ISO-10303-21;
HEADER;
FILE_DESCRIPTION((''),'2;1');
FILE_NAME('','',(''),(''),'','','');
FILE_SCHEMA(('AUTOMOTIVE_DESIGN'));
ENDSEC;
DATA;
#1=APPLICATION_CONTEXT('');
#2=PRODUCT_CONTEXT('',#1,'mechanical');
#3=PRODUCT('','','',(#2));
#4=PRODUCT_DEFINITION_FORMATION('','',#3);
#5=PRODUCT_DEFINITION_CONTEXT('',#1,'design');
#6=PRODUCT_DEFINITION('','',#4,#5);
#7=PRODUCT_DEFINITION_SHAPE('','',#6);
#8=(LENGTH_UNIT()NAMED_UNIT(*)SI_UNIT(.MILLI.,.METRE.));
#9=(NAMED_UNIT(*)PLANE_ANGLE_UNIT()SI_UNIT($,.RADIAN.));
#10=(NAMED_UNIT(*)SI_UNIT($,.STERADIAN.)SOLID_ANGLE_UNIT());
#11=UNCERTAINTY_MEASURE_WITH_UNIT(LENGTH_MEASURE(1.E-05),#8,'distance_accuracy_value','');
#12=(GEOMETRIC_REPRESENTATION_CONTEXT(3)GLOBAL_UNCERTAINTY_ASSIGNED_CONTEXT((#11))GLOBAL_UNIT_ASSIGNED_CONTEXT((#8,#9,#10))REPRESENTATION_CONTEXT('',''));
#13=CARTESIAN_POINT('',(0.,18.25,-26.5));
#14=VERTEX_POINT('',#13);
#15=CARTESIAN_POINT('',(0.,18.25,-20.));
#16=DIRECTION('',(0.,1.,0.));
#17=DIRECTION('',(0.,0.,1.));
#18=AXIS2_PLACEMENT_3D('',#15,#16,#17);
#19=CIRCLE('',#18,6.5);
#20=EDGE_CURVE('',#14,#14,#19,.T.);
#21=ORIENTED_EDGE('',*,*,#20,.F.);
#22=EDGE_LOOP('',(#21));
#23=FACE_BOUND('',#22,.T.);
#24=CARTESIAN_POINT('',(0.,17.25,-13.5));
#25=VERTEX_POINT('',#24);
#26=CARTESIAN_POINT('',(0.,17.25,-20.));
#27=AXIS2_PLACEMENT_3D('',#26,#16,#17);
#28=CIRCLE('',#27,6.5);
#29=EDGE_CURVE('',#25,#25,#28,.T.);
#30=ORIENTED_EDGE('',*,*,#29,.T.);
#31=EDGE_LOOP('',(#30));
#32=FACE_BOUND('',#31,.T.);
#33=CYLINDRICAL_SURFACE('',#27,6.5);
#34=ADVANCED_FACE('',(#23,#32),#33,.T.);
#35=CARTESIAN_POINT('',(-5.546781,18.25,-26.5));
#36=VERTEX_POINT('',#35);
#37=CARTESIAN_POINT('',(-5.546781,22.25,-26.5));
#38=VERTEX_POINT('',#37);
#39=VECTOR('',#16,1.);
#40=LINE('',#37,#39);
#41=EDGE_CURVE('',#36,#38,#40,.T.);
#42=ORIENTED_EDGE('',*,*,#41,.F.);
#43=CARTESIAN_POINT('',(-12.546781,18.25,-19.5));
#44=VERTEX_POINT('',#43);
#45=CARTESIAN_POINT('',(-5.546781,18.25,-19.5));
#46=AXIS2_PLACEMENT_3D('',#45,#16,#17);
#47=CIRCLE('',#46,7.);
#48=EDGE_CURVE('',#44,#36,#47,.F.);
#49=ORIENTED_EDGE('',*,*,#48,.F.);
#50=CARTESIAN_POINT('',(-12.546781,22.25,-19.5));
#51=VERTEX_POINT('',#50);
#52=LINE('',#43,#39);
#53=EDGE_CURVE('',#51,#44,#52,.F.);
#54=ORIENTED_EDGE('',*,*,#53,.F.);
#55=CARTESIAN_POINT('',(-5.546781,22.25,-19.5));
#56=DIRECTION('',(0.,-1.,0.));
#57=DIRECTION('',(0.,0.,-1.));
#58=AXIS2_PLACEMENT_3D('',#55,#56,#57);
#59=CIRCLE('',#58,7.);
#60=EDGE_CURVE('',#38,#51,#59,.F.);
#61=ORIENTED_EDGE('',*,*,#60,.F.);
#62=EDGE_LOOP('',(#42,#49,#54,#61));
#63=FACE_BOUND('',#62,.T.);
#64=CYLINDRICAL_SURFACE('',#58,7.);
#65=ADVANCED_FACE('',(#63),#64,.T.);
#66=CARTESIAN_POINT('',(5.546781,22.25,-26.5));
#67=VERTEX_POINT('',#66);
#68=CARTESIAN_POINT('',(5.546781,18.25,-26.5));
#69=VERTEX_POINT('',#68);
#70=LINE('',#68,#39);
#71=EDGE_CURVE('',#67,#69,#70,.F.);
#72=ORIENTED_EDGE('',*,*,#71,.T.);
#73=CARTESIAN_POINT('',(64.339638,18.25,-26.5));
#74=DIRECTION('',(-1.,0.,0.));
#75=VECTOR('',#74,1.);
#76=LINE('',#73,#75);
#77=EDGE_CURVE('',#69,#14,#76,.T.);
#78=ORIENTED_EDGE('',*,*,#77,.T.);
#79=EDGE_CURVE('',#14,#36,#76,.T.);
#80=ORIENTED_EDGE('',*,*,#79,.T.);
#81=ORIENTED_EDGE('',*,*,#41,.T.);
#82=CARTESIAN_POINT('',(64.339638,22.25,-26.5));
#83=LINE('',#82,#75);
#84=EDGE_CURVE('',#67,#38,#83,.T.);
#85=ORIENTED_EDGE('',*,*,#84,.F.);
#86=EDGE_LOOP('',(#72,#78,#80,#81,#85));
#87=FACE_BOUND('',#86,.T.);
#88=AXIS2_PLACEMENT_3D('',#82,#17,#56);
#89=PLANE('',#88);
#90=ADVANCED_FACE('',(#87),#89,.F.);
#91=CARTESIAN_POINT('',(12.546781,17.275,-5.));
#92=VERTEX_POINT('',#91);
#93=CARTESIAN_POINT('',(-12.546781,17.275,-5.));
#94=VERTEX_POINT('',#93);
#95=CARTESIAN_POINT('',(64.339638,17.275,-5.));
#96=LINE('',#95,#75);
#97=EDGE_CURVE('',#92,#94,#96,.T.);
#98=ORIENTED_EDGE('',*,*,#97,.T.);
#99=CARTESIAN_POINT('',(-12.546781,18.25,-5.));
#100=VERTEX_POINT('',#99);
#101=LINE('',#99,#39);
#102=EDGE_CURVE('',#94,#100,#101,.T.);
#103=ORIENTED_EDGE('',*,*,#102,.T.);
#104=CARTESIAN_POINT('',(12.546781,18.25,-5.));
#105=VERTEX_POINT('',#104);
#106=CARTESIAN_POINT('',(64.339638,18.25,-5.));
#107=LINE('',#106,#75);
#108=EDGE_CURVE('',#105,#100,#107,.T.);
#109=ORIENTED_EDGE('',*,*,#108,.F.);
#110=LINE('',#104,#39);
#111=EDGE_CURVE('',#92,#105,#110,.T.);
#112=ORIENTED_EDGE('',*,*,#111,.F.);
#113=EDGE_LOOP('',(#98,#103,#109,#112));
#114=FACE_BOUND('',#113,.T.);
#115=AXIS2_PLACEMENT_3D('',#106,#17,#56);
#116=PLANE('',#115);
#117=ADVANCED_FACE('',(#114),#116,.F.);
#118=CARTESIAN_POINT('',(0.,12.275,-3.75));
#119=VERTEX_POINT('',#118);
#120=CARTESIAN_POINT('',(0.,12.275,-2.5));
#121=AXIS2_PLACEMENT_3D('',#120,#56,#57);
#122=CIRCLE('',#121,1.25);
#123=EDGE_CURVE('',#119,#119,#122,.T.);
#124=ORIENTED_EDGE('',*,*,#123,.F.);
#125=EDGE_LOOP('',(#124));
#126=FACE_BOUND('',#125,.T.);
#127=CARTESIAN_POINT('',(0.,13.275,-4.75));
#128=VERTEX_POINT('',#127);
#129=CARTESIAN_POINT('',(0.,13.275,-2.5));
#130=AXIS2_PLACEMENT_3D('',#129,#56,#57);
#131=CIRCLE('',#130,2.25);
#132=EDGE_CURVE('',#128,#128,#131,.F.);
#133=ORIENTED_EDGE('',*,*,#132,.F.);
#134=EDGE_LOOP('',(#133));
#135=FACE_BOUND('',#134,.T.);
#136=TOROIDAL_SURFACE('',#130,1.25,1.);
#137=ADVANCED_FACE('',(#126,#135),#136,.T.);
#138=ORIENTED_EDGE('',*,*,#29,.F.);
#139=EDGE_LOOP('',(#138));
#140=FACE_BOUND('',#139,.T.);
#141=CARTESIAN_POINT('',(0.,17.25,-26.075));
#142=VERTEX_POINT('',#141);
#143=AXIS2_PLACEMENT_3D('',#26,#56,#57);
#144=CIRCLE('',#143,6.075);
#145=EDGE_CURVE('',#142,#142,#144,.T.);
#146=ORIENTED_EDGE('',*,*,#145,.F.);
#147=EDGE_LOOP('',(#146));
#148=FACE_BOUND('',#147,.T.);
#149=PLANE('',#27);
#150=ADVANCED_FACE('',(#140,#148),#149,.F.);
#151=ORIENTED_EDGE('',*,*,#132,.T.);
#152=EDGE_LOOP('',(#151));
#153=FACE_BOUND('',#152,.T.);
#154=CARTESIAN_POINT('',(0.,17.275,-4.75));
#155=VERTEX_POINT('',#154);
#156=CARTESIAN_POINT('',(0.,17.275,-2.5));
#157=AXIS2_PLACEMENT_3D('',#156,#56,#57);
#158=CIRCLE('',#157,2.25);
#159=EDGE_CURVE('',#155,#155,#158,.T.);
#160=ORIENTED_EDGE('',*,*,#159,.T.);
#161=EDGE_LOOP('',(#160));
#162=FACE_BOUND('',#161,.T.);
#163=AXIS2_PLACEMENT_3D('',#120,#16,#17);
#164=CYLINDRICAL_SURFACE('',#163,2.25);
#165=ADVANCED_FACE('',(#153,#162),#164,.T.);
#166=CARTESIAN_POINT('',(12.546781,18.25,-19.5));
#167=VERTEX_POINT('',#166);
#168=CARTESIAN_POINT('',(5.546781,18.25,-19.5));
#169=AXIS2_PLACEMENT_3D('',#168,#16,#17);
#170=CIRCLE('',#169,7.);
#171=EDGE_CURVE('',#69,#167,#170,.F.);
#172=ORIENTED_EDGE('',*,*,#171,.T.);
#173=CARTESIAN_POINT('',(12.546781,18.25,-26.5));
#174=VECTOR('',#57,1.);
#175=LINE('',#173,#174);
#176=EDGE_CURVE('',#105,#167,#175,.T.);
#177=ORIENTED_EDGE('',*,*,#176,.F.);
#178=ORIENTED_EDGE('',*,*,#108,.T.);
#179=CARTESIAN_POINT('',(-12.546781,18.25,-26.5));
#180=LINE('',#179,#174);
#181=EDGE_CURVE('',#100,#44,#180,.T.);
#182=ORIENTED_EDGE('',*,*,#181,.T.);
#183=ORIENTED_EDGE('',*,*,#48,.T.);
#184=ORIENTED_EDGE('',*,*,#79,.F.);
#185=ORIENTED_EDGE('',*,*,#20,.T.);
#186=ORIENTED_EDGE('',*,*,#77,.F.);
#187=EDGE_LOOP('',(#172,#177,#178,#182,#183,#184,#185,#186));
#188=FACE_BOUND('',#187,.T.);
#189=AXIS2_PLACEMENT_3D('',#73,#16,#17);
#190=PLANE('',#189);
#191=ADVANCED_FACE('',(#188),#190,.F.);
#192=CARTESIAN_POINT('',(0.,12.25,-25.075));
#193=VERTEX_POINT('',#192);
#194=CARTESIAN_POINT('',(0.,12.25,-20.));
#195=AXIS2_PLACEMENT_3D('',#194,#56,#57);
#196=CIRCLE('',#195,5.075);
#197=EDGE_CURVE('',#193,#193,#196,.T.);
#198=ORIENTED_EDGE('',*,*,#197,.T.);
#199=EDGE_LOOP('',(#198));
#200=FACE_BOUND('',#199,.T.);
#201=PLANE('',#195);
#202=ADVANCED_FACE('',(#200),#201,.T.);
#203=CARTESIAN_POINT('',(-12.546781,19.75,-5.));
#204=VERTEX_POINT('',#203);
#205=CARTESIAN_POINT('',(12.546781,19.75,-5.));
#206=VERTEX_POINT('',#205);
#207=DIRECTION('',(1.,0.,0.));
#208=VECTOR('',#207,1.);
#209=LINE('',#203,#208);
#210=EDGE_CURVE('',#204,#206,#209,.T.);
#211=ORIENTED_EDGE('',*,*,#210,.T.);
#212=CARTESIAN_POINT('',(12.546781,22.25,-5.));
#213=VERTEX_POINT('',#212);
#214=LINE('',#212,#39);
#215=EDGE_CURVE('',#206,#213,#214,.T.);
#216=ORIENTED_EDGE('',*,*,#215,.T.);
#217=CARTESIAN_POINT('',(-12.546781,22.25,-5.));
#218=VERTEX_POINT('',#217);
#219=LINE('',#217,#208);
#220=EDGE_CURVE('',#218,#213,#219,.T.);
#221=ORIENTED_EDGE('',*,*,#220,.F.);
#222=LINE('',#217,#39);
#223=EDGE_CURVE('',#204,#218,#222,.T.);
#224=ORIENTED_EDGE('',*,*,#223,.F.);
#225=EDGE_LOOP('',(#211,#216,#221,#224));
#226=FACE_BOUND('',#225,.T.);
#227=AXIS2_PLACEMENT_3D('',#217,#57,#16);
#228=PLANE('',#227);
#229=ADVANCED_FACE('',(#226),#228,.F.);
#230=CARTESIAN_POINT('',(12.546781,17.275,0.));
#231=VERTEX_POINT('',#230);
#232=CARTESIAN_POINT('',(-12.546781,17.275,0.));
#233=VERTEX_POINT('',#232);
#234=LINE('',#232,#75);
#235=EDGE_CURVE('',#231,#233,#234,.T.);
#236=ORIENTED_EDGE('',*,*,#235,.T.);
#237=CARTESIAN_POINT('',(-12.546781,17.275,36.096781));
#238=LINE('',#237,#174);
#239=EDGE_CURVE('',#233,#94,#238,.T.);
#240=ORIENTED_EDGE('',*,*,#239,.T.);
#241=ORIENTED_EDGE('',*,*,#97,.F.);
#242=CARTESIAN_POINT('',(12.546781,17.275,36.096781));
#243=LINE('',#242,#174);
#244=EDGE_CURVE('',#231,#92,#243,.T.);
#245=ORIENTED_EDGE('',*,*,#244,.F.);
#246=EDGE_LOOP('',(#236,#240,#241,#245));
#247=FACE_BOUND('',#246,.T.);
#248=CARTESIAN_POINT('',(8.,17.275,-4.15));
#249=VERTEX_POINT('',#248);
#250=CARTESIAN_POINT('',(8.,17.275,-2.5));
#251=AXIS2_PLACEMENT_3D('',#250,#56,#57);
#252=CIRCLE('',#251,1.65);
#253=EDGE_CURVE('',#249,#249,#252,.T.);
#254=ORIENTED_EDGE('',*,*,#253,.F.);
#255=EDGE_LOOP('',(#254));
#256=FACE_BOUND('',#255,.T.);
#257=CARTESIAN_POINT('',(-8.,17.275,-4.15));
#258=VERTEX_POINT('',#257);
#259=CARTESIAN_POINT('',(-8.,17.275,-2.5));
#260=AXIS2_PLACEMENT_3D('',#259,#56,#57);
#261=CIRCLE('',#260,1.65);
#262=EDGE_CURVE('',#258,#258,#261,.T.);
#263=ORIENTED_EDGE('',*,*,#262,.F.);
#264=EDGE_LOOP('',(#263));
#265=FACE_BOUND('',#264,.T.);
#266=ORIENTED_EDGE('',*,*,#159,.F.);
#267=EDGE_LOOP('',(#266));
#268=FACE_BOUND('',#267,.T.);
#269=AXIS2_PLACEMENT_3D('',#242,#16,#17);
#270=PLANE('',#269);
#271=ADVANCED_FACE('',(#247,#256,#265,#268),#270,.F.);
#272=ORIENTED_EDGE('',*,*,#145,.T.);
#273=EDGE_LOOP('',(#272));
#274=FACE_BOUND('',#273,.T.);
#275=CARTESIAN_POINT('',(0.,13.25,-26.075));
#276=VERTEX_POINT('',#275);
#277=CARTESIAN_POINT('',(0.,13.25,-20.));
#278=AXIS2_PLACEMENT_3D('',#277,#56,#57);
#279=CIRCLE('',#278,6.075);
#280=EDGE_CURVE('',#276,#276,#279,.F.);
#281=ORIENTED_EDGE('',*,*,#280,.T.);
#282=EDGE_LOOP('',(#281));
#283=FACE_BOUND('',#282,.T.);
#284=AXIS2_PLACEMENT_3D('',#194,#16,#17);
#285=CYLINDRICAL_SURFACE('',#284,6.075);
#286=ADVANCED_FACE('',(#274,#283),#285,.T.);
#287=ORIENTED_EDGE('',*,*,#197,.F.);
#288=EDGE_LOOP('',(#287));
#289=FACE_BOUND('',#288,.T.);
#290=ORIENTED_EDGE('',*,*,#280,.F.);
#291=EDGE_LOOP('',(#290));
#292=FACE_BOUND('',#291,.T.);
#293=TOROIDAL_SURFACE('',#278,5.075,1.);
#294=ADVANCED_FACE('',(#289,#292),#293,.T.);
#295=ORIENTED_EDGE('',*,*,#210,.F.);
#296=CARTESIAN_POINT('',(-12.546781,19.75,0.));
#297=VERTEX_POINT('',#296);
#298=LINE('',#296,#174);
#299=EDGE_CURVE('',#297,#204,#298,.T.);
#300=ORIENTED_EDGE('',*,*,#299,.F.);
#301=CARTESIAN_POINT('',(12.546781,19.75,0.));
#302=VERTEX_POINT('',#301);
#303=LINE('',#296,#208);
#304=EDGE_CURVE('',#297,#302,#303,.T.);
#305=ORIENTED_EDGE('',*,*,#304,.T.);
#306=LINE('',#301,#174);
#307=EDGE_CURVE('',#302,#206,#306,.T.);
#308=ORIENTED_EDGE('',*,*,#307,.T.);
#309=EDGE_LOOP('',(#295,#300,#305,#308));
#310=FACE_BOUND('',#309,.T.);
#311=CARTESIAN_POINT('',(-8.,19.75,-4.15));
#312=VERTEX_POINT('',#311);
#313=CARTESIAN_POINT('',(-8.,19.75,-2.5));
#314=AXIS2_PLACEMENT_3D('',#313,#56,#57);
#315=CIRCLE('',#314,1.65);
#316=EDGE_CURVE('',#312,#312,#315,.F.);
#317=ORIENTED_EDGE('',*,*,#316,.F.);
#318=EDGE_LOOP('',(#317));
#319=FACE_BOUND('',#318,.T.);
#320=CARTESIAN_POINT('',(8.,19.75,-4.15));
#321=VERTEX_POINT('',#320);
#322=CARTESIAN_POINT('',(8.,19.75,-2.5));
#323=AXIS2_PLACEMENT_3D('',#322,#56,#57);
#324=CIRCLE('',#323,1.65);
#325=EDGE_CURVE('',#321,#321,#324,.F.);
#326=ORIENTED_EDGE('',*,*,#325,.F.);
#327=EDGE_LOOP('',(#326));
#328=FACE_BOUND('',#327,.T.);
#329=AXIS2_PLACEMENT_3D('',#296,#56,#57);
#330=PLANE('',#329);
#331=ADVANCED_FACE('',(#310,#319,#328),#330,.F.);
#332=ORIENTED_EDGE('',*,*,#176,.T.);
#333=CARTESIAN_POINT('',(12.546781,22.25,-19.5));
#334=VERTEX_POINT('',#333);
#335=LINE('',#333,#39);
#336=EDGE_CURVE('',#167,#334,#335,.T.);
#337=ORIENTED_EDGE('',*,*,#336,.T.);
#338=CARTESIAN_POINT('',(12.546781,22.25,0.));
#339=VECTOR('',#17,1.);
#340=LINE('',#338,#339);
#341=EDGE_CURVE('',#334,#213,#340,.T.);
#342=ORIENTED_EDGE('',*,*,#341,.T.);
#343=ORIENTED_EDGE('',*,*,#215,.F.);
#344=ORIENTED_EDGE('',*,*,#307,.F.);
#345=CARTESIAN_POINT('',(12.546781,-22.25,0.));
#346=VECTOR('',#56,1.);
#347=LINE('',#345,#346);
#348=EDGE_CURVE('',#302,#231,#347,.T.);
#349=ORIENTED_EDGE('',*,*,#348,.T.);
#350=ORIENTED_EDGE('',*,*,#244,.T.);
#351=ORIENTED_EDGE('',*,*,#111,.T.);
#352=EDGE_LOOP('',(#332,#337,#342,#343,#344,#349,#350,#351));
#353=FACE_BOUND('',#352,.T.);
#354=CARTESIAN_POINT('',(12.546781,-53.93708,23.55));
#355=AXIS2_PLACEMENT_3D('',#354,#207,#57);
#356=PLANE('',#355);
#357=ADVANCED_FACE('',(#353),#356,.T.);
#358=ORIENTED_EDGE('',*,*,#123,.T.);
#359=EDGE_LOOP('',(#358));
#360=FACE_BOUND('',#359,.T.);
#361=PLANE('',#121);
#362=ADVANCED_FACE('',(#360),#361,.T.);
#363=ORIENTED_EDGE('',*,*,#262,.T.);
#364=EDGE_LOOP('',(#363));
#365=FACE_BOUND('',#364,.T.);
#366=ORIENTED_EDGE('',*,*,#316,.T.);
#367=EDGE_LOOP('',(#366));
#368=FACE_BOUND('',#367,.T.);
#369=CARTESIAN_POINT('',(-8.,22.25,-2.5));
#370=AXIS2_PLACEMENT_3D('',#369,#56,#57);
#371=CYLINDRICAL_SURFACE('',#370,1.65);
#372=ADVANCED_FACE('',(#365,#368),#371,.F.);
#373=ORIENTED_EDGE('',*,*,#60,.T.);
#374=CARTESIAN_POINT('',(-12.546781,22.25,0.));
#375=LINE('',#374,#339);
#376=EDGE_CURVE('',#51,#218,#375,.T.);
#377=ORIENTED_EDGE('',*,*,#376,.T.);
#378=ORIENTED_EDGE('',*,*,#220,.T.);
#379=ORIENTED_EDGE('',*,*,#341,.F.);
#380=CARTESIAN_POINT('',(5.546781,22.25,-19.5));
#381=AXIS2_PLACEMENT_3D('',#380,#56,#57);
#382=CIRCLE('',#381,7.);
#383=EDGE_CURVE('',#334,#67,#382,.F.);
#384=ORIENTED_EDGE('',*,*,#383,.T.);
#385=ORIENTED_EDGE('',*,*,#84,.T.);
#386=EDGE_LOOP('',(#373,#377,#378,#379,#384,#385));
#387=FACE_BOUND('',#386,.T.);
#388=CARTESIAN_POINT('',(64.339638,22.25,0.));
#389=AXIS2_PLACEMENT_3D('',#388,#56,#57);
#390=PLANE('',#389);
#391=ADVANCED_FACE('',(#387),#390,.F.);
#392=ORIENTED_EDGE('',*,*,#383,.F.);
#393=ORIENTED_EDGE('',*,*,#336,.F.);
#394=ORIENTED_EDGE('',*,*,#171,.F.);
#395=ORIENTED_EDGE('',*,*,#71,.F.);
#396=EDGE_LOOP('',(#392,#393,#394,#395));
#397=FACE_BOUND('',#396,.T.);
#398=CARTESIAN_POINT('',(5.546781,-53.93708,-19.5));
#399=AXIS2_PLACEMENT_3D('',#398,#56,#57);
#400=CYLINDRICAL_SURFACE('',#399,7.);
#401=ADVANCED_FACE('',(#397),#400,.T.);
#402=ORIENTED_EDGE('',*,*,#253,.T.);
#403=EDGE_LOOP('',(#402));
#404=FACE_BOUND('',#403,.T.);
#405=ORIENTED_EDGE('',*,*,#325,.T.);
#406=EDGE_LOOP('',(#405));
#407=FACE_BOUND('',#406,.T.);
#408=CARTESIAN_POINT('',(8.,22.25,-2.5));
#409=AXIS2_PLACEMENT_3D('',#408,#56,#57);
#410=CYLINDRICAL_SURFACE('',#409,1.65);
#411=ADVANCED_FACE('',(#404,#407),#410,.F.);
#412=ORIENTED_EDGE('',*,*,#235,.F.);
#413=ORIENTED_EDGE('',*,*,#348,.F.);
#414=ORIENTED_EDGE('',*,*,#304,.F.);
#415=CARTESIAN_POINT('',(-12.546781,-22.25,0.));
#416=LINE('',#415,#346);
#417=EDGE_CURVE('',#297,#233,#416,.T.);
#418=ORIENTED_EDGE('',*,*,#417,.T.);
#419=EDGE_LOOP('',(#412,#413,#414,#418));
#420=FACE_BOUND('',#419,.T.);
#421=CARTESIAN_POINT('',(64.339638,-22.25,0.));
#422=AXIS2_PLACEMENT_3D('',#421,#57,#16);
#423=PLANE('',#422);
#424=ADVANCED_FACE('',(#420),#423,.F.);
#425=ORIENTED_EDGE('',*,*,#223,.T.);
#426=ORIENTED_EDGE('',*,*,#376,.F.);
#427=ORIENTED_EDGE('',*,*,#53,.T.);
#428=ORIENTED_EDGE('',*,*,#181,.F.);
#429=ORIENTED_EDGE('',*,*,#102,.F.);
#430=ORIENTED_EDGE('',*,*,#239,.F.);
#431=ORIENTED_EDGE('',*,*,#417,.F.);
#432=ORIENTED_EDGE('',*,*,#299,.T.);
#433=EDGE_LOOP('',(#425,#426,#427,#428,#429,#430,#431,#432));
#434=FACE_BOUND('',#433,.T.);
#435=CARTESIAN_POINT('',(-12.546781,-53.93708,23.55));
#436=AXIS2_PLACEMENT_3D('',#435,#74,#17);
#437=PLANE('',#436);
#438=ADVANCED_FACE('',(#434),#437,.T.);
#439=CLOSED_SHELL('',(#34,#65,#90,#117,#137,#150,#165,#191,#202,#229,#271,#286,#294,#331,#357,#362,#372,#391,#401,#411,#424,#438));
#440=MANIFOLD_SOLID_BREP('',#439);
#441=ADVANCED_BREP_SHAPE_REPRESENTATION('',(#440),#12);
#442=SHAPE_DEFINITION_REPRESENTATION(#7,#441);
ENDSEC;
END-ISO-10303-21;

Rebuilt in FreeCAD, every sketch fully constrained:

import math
import FreeCAD as App
import Part
import Sketcher

V = App.Vector


def edges_at(feature, points):
    """Names of the edges that pass closest to the given points."""
    edges = feature.Shape.Edges
    near = lambda p: min(range(len(edges)), key=lambda i: edges[i].distToShape(Part.Vertex(*p))[0])
    return sorted({f"Edge{near(p) + 1}" for p in points})


def add_polygon(sketch, points):
    """Adds a closed chain of lines whose ends are joined by coincident constraints."""
    first, n = sketch.GeometryCount, len(points)
    for a, b in zip(points, points[1:] + points[:1]):
        sketch.addGeometry(Part.LineSegment(App.Vector(*a, 0), App.Vector(*b, 0)), False)
    for i in range(n):
        sketch.addConstraint(Sketcher.Constraint("Coincident", first + i, 2, first + (i + 1) % n, 1))

doc = App.newDocument("Part")
body = doc.addObject("PartDesign::Body", "Body")

# Sketch on XY plane
sketch1 = body.newObject("Sketcher::SketchObject", "Sketch")
sketch1.AttachmentSupport = (doc.getObject("XY_Plane"), [""])
sketch1.MapMode = "FlatFace"
add_polygon(sketch1, [(-6, 7), (-6, -10), (6, -10), (6, 7)])  # lines 0-3
sketch1.addConstraint([
    Sketcher.Constraint("Vertical", 0),
    Sketcher.Constraint("Horizontal", 1),
    Sketcher.Constraint("Vertical", 2),
    Sketcher.Constraint("Horizontal", 3),
    Sketcher.Constraint("DistanceX", 1, 1, 1, 2, 12.46),
    Sketcher.Constraint("DistanceY", 0, 2, 0, 1, 17.25),
    Sketcher.Constraint("DistanceX", 0, 2, -1, 1, 6.23),
    Sketcher.Constraint("DistanceY", 0, 2, -1, 1, 9.975),
])
pad1 = body.newObject("PartDesign::Pad", "Pad")
pad1.Profile = sketch1
pad1.Length = 6
body2 = doc.addObject("PartDesign::Body", "Body001")

# Sketch on XZ plane
sketch2 = body2.newObject("Sketcher::SketchObject", "Sketch001")
sketch2.AttachmentSupport = (doc.getObject("XZ_Plane001"), [""])
sketch2.MapMode = "FlatFace"
sketch2.AttachmentOffset = App.Placement(V(0, 0, 9.975), App.Rotation())
sketch2.addGeometry([
    Part.Circle(V(0, 24, 0), V(0, 0, 1), 13),
    Part.Circle(V(0, 24, 0), V(0, 0, 1), 11),
], False)
sketch2.addConstraint([
    Sketcher.Constraint("Coincident", 1, 3, 0, 3),
    Sketcher.Constraint("PointOnObject", 0, 3, -2),
    Sketcher.Constraint("Diameter", 1, 22.3),
    Sketcher.Constraint("DistanceY", -1, 1, 0, 3, 23.55),
    Sketcher.Constraint("Diameter", 0, 25.093562),
])
pad2 = body2.newObject("PartDesign::Pad", "Pad001")
pad2.Profile = sketch2
pad2.Type = "TwoLengths"
pad2.Length = 8.3
pad2.Length2 = 17.25
body.AllowCompound = True
doc.recompute()

boolean = body.newObject("PartDesign::Boolean", "Boolean")
boolean.Type = "Fuse"
boolean.addObjects([body2])

# Sketch on XZ plane
sketch3 = body.newObject("Sketcher::SketchObject", "Sketch002")
sketch3.AttachmentSupport = (doc.getObject("XZ_Plane"), [""])
sketch3.MapMode = "FlatFace"
sketch3.AttachmentOffset = App.Placement(V(0, 0, -7.275), App.Rotation())
sketch3.addGeometry([
    Part.LineSegment(V(13, 24, 0), V(13, 0, 0)),  # 0
    Part.LineSegment(V(13, 0, 0), V(6, 0, 0)),  # 1
    Part.LineSegment(V(6, 0, 0), V(6, 30, 0)),  # 2
    Part.LineSegment(V(6, 30, 0), V(-6, 30, 0)),  # 3
    Part.LineSegment(V(-6, 30, 0), V(-6, 0, 0)),  # 4
    Part.LineSegment(V(-6, 0, 0), V(-13, 0, 0)),  # 5
    Part.LineSegment(V(-13, 0, 0), V(-13, 24, 0)),  # 6
    Part.ArcOfCircle(Part.Circle(V(0, 24, 0), V(0, 0, 1), 13), math.radians(0), math.radians(180)),  # 7
], False)
sketch3.addConstraint([
    Sketcher.Constraint("Coincident", 0, 2, 1, 1),
    Sketcher.Constraint("Coincident", 1, 2, 2, 1),
    Sketcher.Constraint("Coincident", 2, 2, 3, 1),
    Sketcher.Constraint("Coincident", 3, 2, 4, 1),
    Sketcher.Constraint("Coincident", 4, 2, 5, 1),
    Sketcher.Constraint("Coincident", 5, 2, 6, 1),
    Sketcher.Constraint("Tangent", 6, 2, 7, 2),
    Sketcher.Constraint("Tangent", 7, 1, 0, 1),
    Sketcher.Constraint("Vertical", 0),
    Sketcher.Constraint("Horizontal", 1),
    Sketcher.Constraint("Vertical", 2),
    Sketcher.Constraint("Horizontal", 3),
    Sketcher.Constraint("Vertical", 4),
    Sketcher.Constraint("Horizontal", 5),
    Sketcher.Constraint("Vertical", 6),
    Sketcher.Constraint("Symmetric", 1, 2, 4, 2, -1, 1),
    Sketcher.Constraint("Symmetric", 0, 2, 5, 2, -2),
    Sketcher.Constraint("DistanceY", 2, 1, 2, 2, 29.7),
    Sketcher.Constraint("DistanceX", 3, 2, 3, 1, 12.46),
    Sketcher.Constraint("DistanceY", 0, 2, 0, 1, 23.55),
    Sketcher.Constraint("Radius", 7, 12.546781),
])
pad3 = body.newObject("PartDesign::Pad", "Pad002")
pad3.Profile = sketch3
pad3.Length = 17.25

# Sketch on XZ plane
sketch4 = body.newObject("Sketcher::SketchObject", "Sketch003")
sketch4.AttachmentSupport = (doc.getObject("XZ_Plane"), [""])
sketch4.MapMode = "FlatFace"
sketch4.AttachmentOffset = App.Placement(V(0, 0, -7.275), App.Rotation())
sketch4.addGeometry([
    Part.Circle(V(0, 3.6, 0), V(0, 0, 1), 0.8),
    Part.Circle(V(0, 32.1, 0), V(0, 0, 1), 0.8),
], False)
sketch4.addConstraint([
    Sketcher.Constraint("Equal", 0, 1),
    Sketcher.Constraint("PointOnObject", 0, 3, -2),
    Sketcher.Constraint("PointOnObject", 1, 3, -2),
    Sketcher.Constraint("Diameter", 0, 1.5),
    Sketcher.Constraint("DistanceY", -1, 1, 0, 3, 3.6),
    Sketcher.Constraint("DistanceY", -1, 1, 1, 3, 32.1),
])
pocket1 = body.newObject("PartDesign::Pocket", "Pocket")
pocket1.Profile = sketch4
pocket1.Length = 5
pocket1.Reversed = True
doc.recompute()

chamfer = body.newObject("PartDesign::Chamfer", "Chamfer")
chamfer.Base = (pocket1, edges_at(pocket1, [(-0.75, 7.275, 3.6), (-0.75, 7.275, 32.1)]))
chamfer.ChamferType = "Two distances"
chamfer.Size = 0.5
chamfer.Size2 = 0.866025

# Sketch on XZ plane
sketch5 = body.newObject("Sketcher::SketchObject", "Sketch004")
sketch5.AttachmentSupport = (doc.getObject("XZ_Plane"), [""])
sketch5.MapMode = "FlatFace"
sketch5.AttachmentOffset = App.Placement(V(0, 0, -7.275), App.Rotation())
add_polygon(sketch5, [(-6, 6), (-6, 30), (6, 30), (6, 6)])  # lines 0-3
sketch5.addConstraint([
    Sketcher.Constraint("Vertical", 0),
    Sketcher.Constraint("Horizontal", 1),
    Sketcher.Constraint("Vertical", 2),
    Sketcher.Constraint("Horizontal", 3),
    Sketcher.Constraint("DistanceY", 0, 1, 0, 2, 23.7),
    Sketcher.Constraint("DistanceY", -1, 1, 2, 2, 6.0),
    Sketcher.Constraint("DistanceX", 1, 1, 1, 2, 12.46),
    Sketcher.Constraint("DistanceX", 0, 2, -1, 1, 6.23),
])
pocket2 = body.newObject("PartDesign::Pocket", "Pocket001")
pocket2.Profile = sketch5
pocket2.Length = 17.25
pocket2.Reversed = True

# Sketch on XZ plane
sketch6 = body.newObject("Sketcher::SketchObject", "Sketch005")
sketch6.AttachmentSupport = (doc.getObject("XZ_Plane"), [""])
sketch6.MapMode = "FlatFace"
sketch6.AttachmentOffset = App.Placement(V(0, 0, 18.275), App.Rotation())
sketch6.addGeometry([
    Part.LineSegment(V(-13, 24, 0), V(-13, 0, 0)),
    Part.LineSegment(V(-13, 0, 0), V(13, 0, 0)),
    Part.LineSegment(V(13, 0, 0), V(13, 24, 0)),
    Part.ArcOfCircle(Part.Circle(V(0, 24, 0), V(0, 0, 1), 13), math.radians(180), math.radians(360)),
], False)
sketch6.addConstraint([
    Sketcher.Constraint("Coincident", 0, 2, 1, 1),
    Sketcher.Constraint("Coincident", 1, 2, 2, 1),
    Sketcher.Constraint("Tangent", 2, 2, 3, 2),
    Sketcher.Constraint("Tangent", 3, 1, 0, 1),
    Sketcher.Constraint("Vertical", 0),
    Sketcher.Constraint("Horizontal", 1),
    Sketcher.Constraint("Vertical", 2),
    Sketcher.Constraint("Symmetric", 0, 2, 1, 2, -1, 1),
    Sketcher.Constraint("DistanceY", 0, 2, 0, 1, 23.55),
    Sketcher.Constraint("Radius", 3, 12.546781),
])
pad4 = body.newObject("PartDesign::Pad", "Pad003")
pad4.Profile = sketch6
pad4.Length = 8.3
pad4.Reversed = True

# Sketch on XZ plane
sketch7 = body.newObject("Sketcher::SketchObject", "Sketch006")
sketch7.AttachmentSupport = (doc.getObject("XZ_Plane"), [""])
sketch7.MapMode = "FlatFace"
sketch7.AttachmentOffset = App.Placement(V(0, 0, -7.275), App.Rotation())
sketch7.addGeometry([
    Part.LineSegment(V(12.5, 0, 0), V(-12.5, 0, 0)),  # 0
    Part.LineSegment(V(-12.5, 0, 0), V(-12.5, 23.6, 0)),  # 1
    Part.ArcOfCircle(Part.Circle(V(0, 23.6, 0), V(0, 0, 1), 12.5), math.radians(0), math.radians(180)),  # 2
    Part.LineSegment(V(12.5, 23.6, 0), V(12.5, 0, 0)),  # 3
    Part.LineSegment(V(-6.2, 0.8, 0), V(6.2, 0.8, 0)),  # 4
    Part.LineSegment(V(6.2, 0.8, 0), V(6.2, 33, 0)),  # 5
    Part.ArcOfCircle(Part.Circle(V(4.7, 33, 0), V(0, 0, 1), 1.5), math.radians(0), math.radians(90)),  # 6
    Part.LineSegment(V(4.7, 34.5, 0), V(-4.7, 34.5, 0)),  # 7
    Part.ArcOfCircle(Part.Circle(V(-4.7, 33, 0), V(0, 0, 1), 1.5), math.radians(90), math.radians(180)),  # 8
    Part.LineSegment(V(-6.2, 33, 0), V(-6.2, 0.8, 0)),  # 9
], False)
sketch7.addConstraint([
    Sketcher.Constraint("Coincident", 0, 2, 1, 1),
    Sketcher.Constraint("Tangent", 1, 2, 2, 2),
    Sketcher.Constraint("Tangent", 2, 1, 3, 1),
    Sketcher.Constraint("Coincident", 3, 2, 0, 1),
    Sketcher.Constraint("Coincident", 4, 2, 5, 1),
    Sketcher.Constraint("Tangent", 5, 2, 6, 1),
    Sketcher.Constraint("Tangent", 6, 2, 7, 1),
    Sketcher.Constraint("Tangent", 7, 2, 8, 1),
    Sketcher.Constraint("Tangent", 8, 2, 9, 1),
    Sketcher.Constraint("Coincident", 9, 2, 4, 1),
    Sketcher.Constraint("Horizontal", 0),
    Sketcher.Constraint("Vertical", 1),
    Sketcher.Constraint("Vertical", 3),
    Sketcher.Constraint("Horizontal", 4),
    Sketcher.Constraint("Vertical", 5),
    Sketcher.Constraint("Horizontal", 7),
    Sketcher.Constraint("Vertical", 9),
    Sketcher.Constraint("Equal", 6, 8),
    Sketcher.Constraint("Symmetric", 0, 2, 3, 2, -1, 1),
    Sketcher.Constraint("Radius", 6, 1.5),
    Sketcher.Constraint("DistanceY", 5, 1, 5, 2, 32.2),
    Sketcher.Constraint("DistanceY", -1, 1, 6, 3, 33.0),
    Sketcher.Constraint("DistanceX", 4, 1, 4, 2, 12.46),
    Sketcher.Constraint("DistanceY", 1, 1, 1, 2, 23.55),
    Sketcher.Constraint("DistanceX", -1, 1, 6, 3, 4.73),
    Sketcher.Constraint("Radius", 2, 12.546781),
])
pad5 = body.newObject("PartDesign::Pad", "Pad004")
pad5.Profile = sketch7
pad5.Length = 10
pad5.Reversed = True

# Sketch on XZ plane
sketch8 = body.newObject("Sketcher::SketchObject", "Sketch007")
sketch8.AttachmentSupport = (doc.getObject("XZ_Plane"), [""])
sketch8.MapMode = "FlatFace"
sketch8.AttachmentOffset = App.Placement(V(0, 0, 18.275), App.Rotation())
sketch8.addGeometry([
    Part.Circle(V(0, 24, 0), V(0, 0, 1), 11),
    Part.Circle(V(0, 24, 0), V(0, 0, 1), 7),
], False)
sketch8.addConstraint([
    Sketcher.Constraint("Coincident", 1, 3, 0, 3),
    Sketcher.Constraint("PointOnObject", 0, 3, -2),
    Sketcher.Constraint("Diameter", 0, 22.3),
    Sketcher.Constraint("Diameter", 1, 14.3),
    Sketcher.Constraint("DistanceY", -1, 1, 0, 3, 23.55),
])
pad6 = body.newObject("PartDesign::Pad", "Pad005")
pad6.Profile = sketch8
pad6.Length = 8.3
pad6.Reversed = True

# Sketch on XZ plane
sketch9 = body.newObject("Sketcher::SketchObject", "Sketch008")
sketch9.AttachmentSupport = (doc.getObject("XZ_Plane"), [""])
sketch9.MapMode = "FlatFace"
sketch9.AttachmentOffset = App.Placement(V(0, 0, 18.275), App.Rotation())
sketch9.addGeometry([
    Part.Circle(V(0, 24, 0), V(0, 0, 1), 10),
    Part.Circle(V(0, 24, 0), V(0, 0, 1), 7),
], False)
sketch9.addConstraint([
    Sketcher.Constraint("Coincident", 1, 3, 0, 3),
    Sketcher.Constraint("PointOnObject", 0, 3, -2),
    Sketcher.Constraint("Diameter", 0, 20.3),
    Sketcher.Constraint("Diameter", 1, 14.3),
    Sketcher.Constraint("DistanceY", -1, 1, 0, 3, 23.55),
])
pocket3 = body.newObject("PartDesign::Pocket", "Pocket002")
pocket3.Profile = sketch9
pocket3.Length = 1.3

# Sketch on XY plane
sketch10 = body.newObject("Sketcher::SketchObject", "Sketch009")
sketch10.AttachmentSupport = (doc.getObject("XY_Plane"), [""])
sketch10.MapMode = "FlatFace"
sketch10.AttachmentOffset = App.Placement(V(0, 0, 29.7), App.Rotation())
add_polygon(sketch10, [(-5, -10), (-5, -12), (5, -12), (5, -10)])  # lines 0-3
sketch10.addConstraint([
    Sketcher.Constraint("Vertical", 0),
    Sketcher.Constraint("Horizontal", 1),
    Sketcher.Constraint("Vertical", 2),
    Sketcher.Constraint("Horizontal", 3),
    Sketcher.Constraint("DistanceX", 1, 1, 1, 2, 10.0),
    Sketcher.Constraint("DistanceY", 0, 2, 0, 1, 2.0),
    Sketcher.Constraint("DistanceX", 0, 2, -1, 1, 5.0),
    Sketcher.Constraint("DistanceY", 0, 2, -1, 1, 11.975),
])
pocket4 = body.newObject("PartDesign::Pocket", "Pocket003")
pocket4.Profile = sketch10
pocket4.Length = 23.7

# Sketch on XZ plane
sketch11 = body.newObject("Sketcher::SketchObject", "Sketch010")
sketch11.AttachmentSupport = (doc.getObject("XZ_Plane"), [""])
sketch11.MapMode = "FlatFace"
sketch11.AttachmentOffset = App.Placement(V(0, 0, 18.275), App.Rotation())
add_polygon(sketch11, [(-6, 12), (-6, 6), (6, 6), (6, 12)])  # lines 0-3
sketch11.addConstraint([
    Sketcher.Constraint("Vertical", 0),
    Sketcher.Constraint("Horizontal", 1),
    Sketcher.Constraint("Vertical", 2),
    Sketcher.Constraint("Horizontal", 3),
    Sketcher.Constraint("DistanceY", 0, 2, 0, 1, 6.0),
    Sketcher.Constraint("DistanceY", -1, 1, 0, 2, 6.0),
    Sketcher.Constraint("DistanceX", 1, 1, 1, 2, 12.46),
    Sketcher.Constraint("DistanceX", 0, 2, -1, 1, 6.23),
])
pocket5 = body.newObject("PartDesign::Pocket", "Pocket004")
pocket5.Profile = sketch11
pocket5.Length = 8.3

# Sketch on YZ plane
sketch12 = body.newObject("Sketcher::SketchObject", "Sketch011")
sketch12.AttachmentSupport = (doc.getObject("YZ_Plane"), [""])
sketch12.MapMode = "FlatFace"
sketch12.AttachmentOffset = App.Placement(V(0, 0, -12.546781), App.Rotation())
add_polygon(sketch12, [(-22.2, 0), (-22.2, -26.5), (-18.2, -26.5), (-18.2, -5), (18.2, -5), (18.2, -26.5), (22.2, -26.5), (22.2, 0)])  # lines 0-7
sketch12.addConstraint([
    Sketcher.Constraint("Vertical", 0),
    Sketcher.Constraint("Horizontal", 1),
    Sketcher.Constraint("Vertical", 2),
    Sketcher.Constraint("Horizontal", 3),
    Sketcher.Constraint("Vertical", 4),
    Sketcher.Constraint("Horizontal", 5),
    Sketcher.Constraint("Vertical", 6),
    Sketcher.Constraint("Horizontal", 7),
    Sketcher.Constraint("Symmetric", 6, 2, 7, 2, -1, 1),
    Sketcher.Constraint("Symmetric", 1, 2, 4, 2, -2),
    Sketcher.Constraint("DistanceX", 1, 1, 1, 2, 4.0),
    Sketcher.Constraint("DistanceX", 3, 1, 3, 2, 36.5),
    Sketcher.Constraint("DistanceY", 0, 2, 0, 1, 26.5),
    Sketcher.Constraint("DistanceY", 2, 1, 2, 2, 21.5),
])
pad7 = body.newObject("PartDesign::Pad", "Pad006")
pad7.Profile = sketch12
pad7.Length = 25.093562

# Sketch on XZ plane
sketch13 = body.newObject("Sketcher::SketchObject", "Sketch012")
sketch13.AttachmentSupport = (doc.getObject("XZ_Plane"), [""])
sketch13.MapMode = "FlatFace"
sketch13.AttachmentOffset = App.Placement(V(0, 0, 18.25), App.Rotation())
add_polygon(sketch13, [(6, -26), (-6, -26), (-6, -5), (6, -5)])  # lines 0-3
sketch13.addConstraint([
    Sketcher.Constraint("Horizontal", 0),
    Sketcher.Constraint("Vertical", 1),
    Sketcher.Constraint("Horizontal", 2),
    Sketcher.Constraint("Vertical", 3),
    Sketcher.Constraint("DistanceY", 1, 1, 1, 2, 21.5),
    Sketcher.Constraint("DistanceY", 1, 2, -1, 1, 5.0),
    Sketcher.Constraint("DistanceX", 0, 2, 0, 1, 12.438293),
    Sketcher.Constraint("DistanceX", 0, 2, -1, 1, 6.219146),
])
pocket6 = body.newObject("PartDesign::Pocket", "Pocket005")
pocket6.Profile = sketch13
pocket6.Length = 2
pocket6.Reversed = True

# Sketch on XZ plane
sketch14 = body.newObject("Sketcher::SketchObject", "Sketch013")
sketch14.AttachmentSupport = (doc.getObject("XZ_Plane"), [""])
sketch14.MapMode = "FlatFace"
sketch14.AttachmentOffset = App.Placement(V(0, 0, 20.25), App.Rotation())
sketch14.addGeometry(Part.Circle(V(0, -20, 0), V(0, 0, 1), 3.5), False)
sketch14.addConstraint([
    Sketcher.Constraint("PointOnObject", 0, 3, -2),
    Sketcher.Constraint("Diameter", 0, 7.0),
    Sketcher.Constraint("DistanceY", 0, 3, -1, 1, 20.0),
])
pocket7 = body.newObject("PartDesign::Pocket", "Pocket006")
pocket7.Profile = sketch14
pocket7.Type = "ThroughAll"
pocket7.Midplane = True
doc.recompute()

fillet = body.newObject("PartDesign::Fillet", "Fillet")
fillet.Base = (pocket7, edges_at(pocket7, [
    (12.547, -20.25, -26.5),
    (-12.547, -20.25, -26.5),
    (-12.547, 20.25, -26.5),
    (12.547, 20.25, -26.5),
]))
fillet.Radius = 7

# Sketch on XZ plane
sketch15 = body.newObject("Sketcher::SketchObject", "Sketch014")
sketch15.AttachmentSupport = (doc.getObject("XZ_Plane"), [""])
sketch15.MapMode = "FlatFace"
sketch15.AttachmentOffset = App.Placement(V(0, 0, -22.25), App.Rotation())
sketch15.addGeometry(Part.Circle(V(0, -20, 0), V(0, 0, 1), 6), False)
sketch15.addConstraint([
    Sketcher.Constraint("PointOnObject", 0, 3, -2),
    Sketcher.Constraint("Diameter", 0, 13.0),
    Sketcher.Constraint("DistanceY", 0, 3, -1, 1, 20.0),
])
pad8 = body.newObject("PartDesign::Pad", "Pad007")
pad8.Profile = sketch15
pad8.Length = 5

# Sketch on XZ plane
sketch16 = body.newObject("Sketcher::SketchObject", "Sketch015")
sketch16.AttachmentSupport = (doc.getObject("XZ_Plane"), [""])
sketch16.MapMode = "FlatFace"
sketch16.AttachmentOffset = App.Placement(V(0, 0, -17.25), App.Rotation())
sketch16.addGeometry(Part.Circle(V(0, -20, 0), V(0, 0, 1), 6), False)
sketch16.addConstraint([
    Sketcher.Constraint("PointOnObject", 0, 3, -2),
    Sketcher.Constraint("Diameter", 0, 12.15),
    Sketcher.Constraint("DistanceY", 0, 3, -1, 1, 20.0),
])
pad9 = body.newObject("PartDesign::Pad", "Pad008")
pad9.Profile = sketch16
pad9.Length = 5
doc.recompute()

fillet2 = body.newObject("PartDesign::Fillet", "Fillet001")
fillet2.Base = (pad9, edges_at(pad9, [(-6.075, 12.25, -20)]))
fillet2.Radius = 1

# Sketch on XZ plane
sketch17 = body.newObject("Sketcher::SketchObject", "Sketch016")
sketch17.AttachmentSupport = (doc.getObject("XZ_Plane"), [""])
sketch17.MapMode = "FlatFace"
sketch17.AttachmentOffset = App.Placement(V(0, 0, 20.25), App.Rotation())
add_polygon(sketch17, [(-6.2, -5), (-2.5, -5), (-3.4, -26.5), (-6.2, -26.5)])  # lines 0-3
add_polygon(sketch17, [(2.5, -5), (6.2, -5), (6.2, -26.5), (3.4, -26.5)])  # lines 4-7
sketch17.addConstraint([
    Sketcher.Constraint("Horizontal", 0),
    Sketcher.Constraint("Horizontal", 2),
    Sketcher.Constraint("Vertical", 3),
    Sketcher.Constraint("Horizontal", 4),
    Sketcher.Constraint("Vertical", 5),
    Sketcher.Constraint("Horizontal", 6),
    Sketcher.Constraint("Symmetric", 3, 2, 4, 2, -2),
    Sketcher.Constraint("Symmetric", 1, 2, 6, 2, -2),
    Sketcher.Constraint("Equal", 0, 4),
    Sketcher.Constraint("DistanceY", 3, 1, 3, 2, 21.5),
    Sketcher.Constraint("DistanceY", 0, 2, -1, 1, 5.0),
    Sketcher.Constraint("DistanceX", 0, 2, 7, 2, 5.0),
    Sketcher.Constraint("DistanceX", 1, 2, 6, 2, 6.8877),
    Sketcher.Constraint("DistanceX", 0, 1, 0, 2, 3.719146),
])
pad10 = body.newObject("PartDesign::Pad", "Pad009")
pad10.Profile = sketch17
pad10.Length = 2
pad10.Reversed = True

# Sketch on XZ plane
sketch18 = body.newObject("Sketcher::SketchObject", "Sketch017")
sketch18.AttachmentSupport = (doc.getObject("XZ_Plane"), [""])
sketch18.MapMode = "FlatFace"
sketch18.AttachmentOffset = App.Placement(V(0, 0, 22.25), App.Rotation())
sketch18.addGeometry(Part.Circle(V(0, -10, 0), V(0, 0, 1), 0.8), False)
sketch18.addConstraint([
    Sketcher.Constraint("PointOnObject", 0, 3, -2),
    Sketcher.Constraint("Diameter", 0, 1.5),
    Sketcher.Constraint("DistanceY", 0, 3, -1, 1, 10.0),
])
pocket8 = body.newObject("PartDesign::Pocket", "Pocket007")
pocket8.Profile = sketch18
pocket8.Type = "UpToFirst"

# Sketch on YZ plane
sketch19 = body.newObject("Sketcher::SketchObject", "Sketch018")
sketch19.AttachmentSupport = (doc.getObject("YZ_Plane"), [""])
sketch19.MapMode = "FlatFace"
sketch19.AttachmentOffset = App.Placement(V(0, 0, -12.546781), App.Rotation())
add_polygon(sketch19, [(17, 36), (17, -10), (5, -10), (5, -33), (-27, -33), (-27, 36)])  # lines 0-5
sketch19.addConstraint([
    Sketcher.Constraint("Vertical", 0),
    Sketcher.Constraint("Horizontal", 1),
    Sketcher.Constraint("Vertical", 2),
    Sketcher.Constraint("Horizontal", 3),
    Sketcher.Constraint("Vertical", 4),
    Sketcher.Constraint("Horizontal", 5),
    Sketcher.Constraint("DistanceY", 2, 2, 2, 1, 23.308801),
    Sketcher.Constraint("DistanceX", -1, 1, 0, 2, 17.275),
    Sketcher.Constraint("DistanceX", 1, 2, 1, 1, 11.943368),
    Sketcher.Constraint("DistanceY", 0, 2, 0, 1, 46.11745),
    Sketcher.Constraint("DistanceX", 3, 2, 3, 1, 32.536626),
    Sketcher.Constraint("DistanceY", 0, 2, -1, 1, 10.020669),
])
pocket9 = body.newObject("PartDesign::Pocket", "Pocket008")
pocket9.Profile = sketch19
pocket9.Type = "ThroughAll"
pocket9.Reversed = True

# Sketch on XZ plane
sketch20 = body.newObject("Sketcher::SketchObject", "Sketch019")
sketch20.AttachmentSupport = (doc.getObject("XZ_Plane"), [""])
sketch20.MapMode = "FlatFace"
sketch20.AttachmentOffset = App.Placement(V(0, 0, -17.275), App.Rotation())
sketch20.addGeometry([
    Part.Circle(V(-8, -2.5, 0), V(0, 0, 1), 1.6),
    Part.Circle(V(8, -2.5, 0), V(0, 0, 1), 1.6),
], False)
sketch20.addConstraint([
    Sketcher.Constraint("Equal", 0, 1),
    Sketcher.Constraint("Symmetric", 0, 3, 1, 3, -2),
    Sketcher.Constraint("Diameter", 0, 3.3),
    Sketcher.Constraint("DistanceX", 0, 3, -1, 1, 8.0),
    Sketcher.Constraint("DistanceY", 0, 3, -1, 1, 2.5),
])
pocket10 = body.newObject("PartDesign::Pocket", "Pocket009")
pocket10.Profile = sketch20
pocket10.Type = "ThroughAll"

# Sketch on XZ plane
sketch21 = body.newObject("Sketcher::SketchObject", "Sketch020")
sketch21.AttachmentSupport = (doc.getObject("XZ_Plane"), [""])
sketch21.MapMode = "FlatFace"
sketch21.AttachmentOffset = App.Placement(V(0, 0, -17.275), App.Rotation())
sketch21.addGeometry(Part.Circle(V(0, -2.5, 0), V(0, 0, 1), 2.2), False)
sketch21.addConstraint([
    Sketcher.Constraint("PointOnObject", 0, 3, -2),
    Sketcher.Constraint("Diameter", 0, 4.5),
    Sketcher.Constraint("DistanceY", 0, 3, -1, 1, 2.5),
])
pad11 = body.newObject("PartDesign::Pad", "Pad010")
pad11.Profile = sketch21
pad11.Length = 5
doc.recompute()

fillet3 = body.newObject("PartDesign::Fillet", "Fillet002")
fillet3.Base = (pad11, edges_at(pad11, [(-2.25, 12.275, -2.5)]))
fillet3.Radius = 1

# Sketch on YZ plane
sketch22 = body.newObject("Sketcher::SketchObject", "Sketch021")
sketch22.AttachmentSupport = (doc.getObject("YZ_Plane"), [""])
sketch22.MapMode = "FlatFace"
sketch22.AttachmentOffset = App.Placement(V(0, 0, 12.546781), App.Rotation())
add_polygon(sketch22, [(22.2, 0), (19.8, 0), (19.8, -5), (22.2, -5)])  # lines 0-3
sketch22.addConstraint([
    Sketcher.Constraint("Horizontal", 0),
    Sketcher.Constraint("Vertical", 1),
    Sketcher.Constraint("Horizontal", 2),
    Sketcher.Constraint("Vertical", 3),
    Sketcher.Constraint("PointOnObject", 0, 2, -1),
    Sketcher.Constraint("DistanceY", 1, 2, 1, 1, 5.0),
    Sketcher.Constraint("DistanceX", 0, 2, 0, 1, 2.5),
    Sketcher.Constraint("DistanceX", -1, 1, 0, 2, 19.75),
])
pocket11 = body.newObject("PartDesign::Pocket", "Pocket010")
pocket11.Profile = sketch22
pocket11.Type = "ThroughAll"

doc.recompute()
